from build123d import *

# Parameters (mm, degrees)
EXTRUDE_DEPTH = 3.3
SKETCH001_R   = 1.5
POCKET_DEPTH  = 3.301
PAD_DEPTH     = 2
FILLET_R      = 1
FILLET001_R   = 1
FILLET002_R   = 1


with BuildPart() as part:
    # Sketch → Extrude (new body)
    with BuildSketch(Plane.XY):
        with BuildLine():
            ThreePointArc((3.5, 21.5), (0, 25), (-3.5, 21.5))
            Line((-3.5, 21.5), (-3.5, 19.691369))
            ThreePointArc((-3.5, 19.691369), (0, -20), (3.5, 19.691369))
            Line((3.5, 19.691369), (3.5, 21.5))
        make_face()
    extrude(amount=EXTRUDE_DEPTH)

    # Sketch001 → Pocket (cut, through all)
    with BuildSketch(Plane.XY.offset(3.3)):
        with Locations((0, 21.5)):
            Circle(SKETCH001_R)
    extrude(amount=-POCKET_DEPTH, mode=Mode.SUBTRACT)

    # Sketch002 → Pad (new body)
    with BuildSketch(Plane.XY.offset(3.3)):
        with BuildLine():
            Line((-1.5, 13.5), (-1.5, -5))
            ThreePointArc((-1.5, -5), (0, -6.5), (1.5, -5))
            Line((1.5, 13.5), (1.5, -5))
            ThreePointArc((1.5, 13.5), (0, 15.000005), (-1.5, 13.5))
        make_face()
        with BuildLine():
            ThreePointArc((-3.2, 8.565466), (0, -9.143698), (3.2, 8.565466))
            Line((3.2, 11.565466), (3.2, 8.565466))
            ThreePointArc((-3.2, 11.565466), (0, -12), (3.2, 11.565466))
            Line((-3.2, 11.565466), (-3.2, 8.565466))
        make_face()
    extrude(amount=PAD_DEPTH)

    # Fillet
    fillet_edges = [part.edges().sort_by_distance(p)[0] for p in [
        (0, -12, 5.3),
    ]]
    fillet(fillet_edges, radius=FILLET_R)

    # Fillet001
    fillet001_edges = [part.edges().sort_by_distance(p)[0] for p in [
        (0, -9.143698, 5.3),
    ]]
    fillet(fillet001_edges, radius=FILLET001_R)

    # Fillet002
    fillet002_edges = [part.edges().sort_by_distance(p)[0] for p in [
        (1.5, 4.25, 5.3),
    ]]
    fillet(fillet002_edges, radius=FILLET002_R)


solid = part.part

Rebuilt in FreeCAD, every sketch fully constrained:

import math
import FreeCAD as App
import Part
import Sketcher

V = App.Vector
Q = App.Units.Quantity


def edges_at(feature, points):
    """Names of the edges that pass closest to the given points."""
    edges = feature.Shape.Edges
    near = lambda p: min(range(len(edges)), key=lambda i: edges[i].distToShape(Part.Vertex(*p))[0])
    return sorted({f"Edge{near(p) + 1}" for p in points})

doc = App.newDocument("Part")
body = doc.addObject("PartDesign::Body", "Body")

sketch1 = doc.addObject("Sketcher::SketchObject", "Sketch")
body.addObject(sketch1)
sketch1.AttachmentSupport = (doc.XY_Plane, [""])
sketch1.MapMode = "FlatFace"
sketch1.addGeometry([
    Part.ArcOfCircle(Part.Circle(V(0, 21.5, 0), V(0, 0, 1), 3.5), math.radians(0), math.radians(180)),
    Part.LineSegment(V(-3.5, 21.5, 0), V(-3.5, 19.691369, 0)),
    Part.ArcOfCircle(Part.Circle(V(0, 0, 0), V(0, 0, 1), 20), math.radians(100.078658), math.radians(439.921342)),
    Part.LineSegment(V(3.5, 19.691369, 0), V(3.5, 21.5, 0)),
], False)
sketch1.addConstraint([
    Sketcher.Constraint("Tangent", 0, 2, 1, 1),
    Sketcher.Constraint("Coincident", 1, 2, 2, 1),
    Sketcher.Constraint("Coincident", 2, 2, 3, 1),
    Sketcher.Constraint("Tangent", 3, 2, 0, 1),
    Sketcher.Constraint("Vertical", 1),
    Sketcher.Constraint("Vertical", 3),
    Sketcher.Constraint("Coincident", 2, 3, -1, 1),
    Sketcher.Constraint("PointOnObject", 0, 3, -2),
    Sketcher.Constraint("Radius", 2, Q("20 mm")),
    Sketcher.Constraint("Radius", 0, Q("3.5 mm")),
    Sketcher.Constraint("DistanceY", -1, 1, 0, 3, Q("21.5 mm")),
])
pad1 = doc.addObject("PartDesign::Pad", "Pad")
body.addObject(pad1)
pad1.Profile = sketch1
pad1.Length = 3.3

sketch2 = doc.addObject("Sketcher::SketchObject", "Sketch001")
body.addObject(sketch2)
sketch2.AttachmentSupport = (doc.XY_Plane, [""])
sketch2.MapMode = "FlatFace"
sketch2.AttachmentOffset = App.Placement(V(0, 0, 3.3), App.Rotation())
sketch2.addGeometry(Part.Circle(V(0, 21.5, 0), V(0, 0, 1), 1.5), False)
sketch2.addConstraint([
    Sketcher.Constraint("PointOnObject", 0, 3, -2),
    Sketcher.Constraint("Diameter", 0, Q("3 mm")),
    Sketcher.Constraint("DistanceY", -1, 1, 0, 3, Q("21.5 mm")),
])
pocket1 = doc.addObject("PartDesign::Pocket", "Pocket")
body.addObject(pocket1)
pocket1.Profile = sketch2
pocket1.Type = "ThroughAll"

sketch3 = doc.addObject("Sketcher::SketchObject", "Sketch002")
body.addObject(sketch3)
sketch3.AttachmentSupport = (doc.XY_Plane, [""])
sketch3.MapMode = "FlatFace"
sketch3.AttachmentOffset = App.Placement(V(0, 0, 3.3), App.Rotation())
sketch3.addGeometry([
    Part.LineSegment(V(-1.5, 13.5, 0), V(-1.5, -5, 0)),
    Part.ArcOfCircle(Part.Circle(V(0, -5, 0), V(0, 0, 1), 1.5), math.radians(180), math.radians(360)),
    Part.LineSegment(V(1.5, -5, 0), V(1.5, 13.5, 0)),
    Part.ArcOfCircle(Part.Circle(V(0, 13.500005, 0), V(0, 0, 1), 1.5), math.radians(-0.000191), math.radians(180.000191)),
    Part.ArcOfCircle(Part.Circle(V(0, 0, 0), V(0, 0, 1), 9.143698), math.radians(110.485347), math.radians(429.514653)),
    Part.LineSegment(V(-3.2, 8.565466, 0), V(-3.2, 11.565466, 0)),
    Part.ArcOfCircle(Part.Circle(V(0, 0, 0), V(0, 0, 1), 12), math.radians(105.46601), math.radians(434.53399)),
    Part.LineSegment(V(3.2, 11.565466, 0), V(3.2, 8.565466, 0)),
], False)
sketch3.addConstraint([
    Sketcher.Constraint("Tangent", 0, 2, 1, 1),
    Sketcher.Constraint("Tangent", 1, 2, 2, 1),
    Sketcher.Constraint("Coincident", 2, 2, 3, 1),
    Sketcher.Constraint("Coincident", 3, 2, 0, 1),
    Sketcher.Constraint("Coincident", 4, 1, 5, 1),
    Sketcher.Constraint("Coincident", 5, 2, 6, 1),
    Sketcher.Constraint("Coincident", 6, 2, 7, 1),
    Sketcher.Constraint("Coincident", 7, 2, 4, 2),
    Sketcher.Constraint("Vertical", 0),
    Sketcher.Constraint("Vertical", 2),
    Sketcher.Constraint("Vertical", 5),
    Sketcher.Constraint("Vertical", 7),
    Sketcher.Constraint("Coincident", 4, 3, -1, 1),
    Sketcher.Constraint("Coincident", 6, 3, -1, 1),
    Sketcher.Constraint("Symmetric", 2, 2, 3, 2, -2),
    Sketcher.Constraint("Horizontal", 5, 2, 6, 2),
    Sketcher.Constraint("Radius", 6, Q("12 mm")),
    Sketcher.Constraint("Radius", 1, Q("1.5 mm")),
    Sketcher.Constraint("DistanceY", 5, 1, 5, 2, Q("3 mm")),
    Sketcher.Constraint("DistanceY", 0, 2, 0, 1, Q("18.5 mm")),
    Sketcher.Constraint("DistanceY", 1, 3, -1, 1, Q("5 mm")),
    Sketcher.Constraint("DistanceX", 4, 1, -1, 1, Q("3.2 mm")),
    Sketcher.Constraint("DistanceY", 4, 1, 3, 3, Q("4.934539 mm")),
])
pad2 = doc.addObject("PartDesign::Pad", "Pad001")
body.addObject(pad2)
pad2.Profile = sketch3
pad2.Length = 2
doc.recompute()

fillet = doc.addObject("PartDesign::Fillet", "Fillet")
body.addObject(fillet)
fillet.Base = (pad2, edges_at(pad2, [(0, -12, 5.3)]))
fillet.Radius = 1
doc.recompute()

fillet2 = doc.addObject("PartDesign::Fillet", "Fillet001")
body.addObject(fillet2)
fillet2.Base = (fillet, edges_at(fillet, [(0, -9.144, 5.3)]))
fillet2.Radius = 1
doc.recompute()

fillet3 = doc.addObject("PartDesign::Fillet", "Fillet002")
body.addObject(fillet3)
fillet3.Base = (fillet2, edges_at(fillet2, [(1.5, 4.25, 5.3)]))
fillet3.Radius = 1

doc.recompute()
